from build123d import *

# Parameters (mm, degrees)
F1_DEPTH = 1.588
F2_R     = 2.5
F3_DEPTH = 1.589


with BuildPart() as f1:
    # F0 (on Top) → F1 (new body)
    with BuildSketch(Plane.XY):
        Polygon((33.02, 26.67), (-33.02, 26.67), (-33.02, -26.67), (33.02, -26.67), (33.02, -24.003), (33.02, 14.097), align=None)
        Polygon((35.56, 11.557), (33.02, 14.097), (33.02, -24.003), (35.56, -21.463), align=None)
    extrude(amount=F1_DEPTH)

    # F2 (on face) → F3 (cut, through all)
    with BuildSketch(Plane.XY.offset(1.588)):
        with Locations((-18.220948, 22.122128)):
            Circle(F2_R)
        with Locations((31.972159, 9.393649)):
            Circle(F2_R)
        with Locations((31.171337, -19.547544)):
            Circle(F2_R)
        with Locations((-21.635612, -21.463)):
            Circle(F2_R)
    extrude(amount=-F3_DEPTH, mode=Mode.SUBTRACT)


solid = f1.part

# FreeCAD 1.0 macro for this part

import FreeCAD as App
import Part
import Sketcher
from FreeCAD import Vector
Q = App.Units.Quantity


def add_polygon(sketch, points):
    """Adds a closed chain of lines whose ends are joined by coincident constraints."""
    first, n = sketch.GeometryCount, len(points)
    for a, b in zip(points, points[1:] + points[:1]):
        sketch.addGeometry(Part.LineSegment(App.Vector(*a, 0), App.Vector(*b, 0)), False)
    for i in range(n):
        sketch.addConstraint(Sketcher.Constraint("Coincident", first + i, 2, first + (i + 1) % n, 1))

doc = App.newDocument("Part")
body = doc.addObject("PartDesign::Body", "Body")

# Sketch on XY plane
sketch1 = doc.addObject("Sketcher::SketchObject", "Sketch")
body.addObject(sketch1)
sketch1.AttachmentSupport = (doc.XY_Plane, [""])
sketch1.MapMode = "FlatFace"
add_polygon(sketch1, [(33, 26.7), (-33, 26.7), (-33, -26.7), (33, -26.7), (33, -24), (35.6, -21.5), (35.6, 11.6), (33, 14.1)])  # lines 0-7
sketch1.addConstraint(Sketcher.Constraint("Horizontal", 0))
sketch1.addConstraint(Sketcher.Constraint("Vertical", 1))
sketch1.addConstraint(Sketcher.Constraint("Horizontal", 2))
sketch1.addConstraint(Sketcher.Constraint("Vertical", 3))
sketch1.addConstraint(Sketcher.Constraint("Vertical", 5))
sketch1.addConstraint(Sketcher.Constraint("Vertical", 7))
sketch1.addConstraint(Sketcher.Constraint("Symmetric", 0, 2, 2, 2, -1, 1))
sketch1.addConstraint(Sketcher.Constraint("Perpendicular", 4, 6))
sketch1.addConstraint(Sketcher.Constraint("Vertical", 3, 2, 6, 2))
sketch1.addConstraint(Sketcher.Constraint("Equal", 4, 6))
sketch1.addConstraint(Sketcher.Constraint("DistanceX", 0, 2, 0, 1, Q("2.6 in")))
sketch1.addConstraint(Sketcher.Constraint("DistanceY", 1, 2, 1, 1, Q("2.1 in")))
sketch1.addConstraint(Sketcher.Constraint("DistanceY", 5, 1, 5, 2, Q("1.3 in")))
sketch1.addConstraint(Sketcher.Constraint("DistanceX", -1, 1, 4, 2, Q("1.4 in")))
sketch1.addConstraint(Sketcher.Constraint("DistanceY", 3, 1, 3, 2, Q("0.105 in")))
pad1 = doc.addObject("PartDesign::Pad", "Pad")
body.addObject(pad1)
pad1.Profile = sketch1
pad1.Length = 1.588

# Sketch on XY plane
sketch2 = doc.addObject("Sketcher::SketchObject", "Sketch001")
body.addObject(sketch2)
sketch2.AttachmentSupport = (doc.XY_Plane, [""])
sketch2.MapMode = "FlatFace"
sketch2.AttachmentOffset = App.Placement(Vector(0, 0, 1.588), App.Rotation())
sketch2.addGeometry(Part.Circle(Vector(-18.2, 22.1, 0), Vector(0, 0, 1), 2.5), False)
sketch2.addGeometry(Part.Circle(Vector(32, 9.4, 0), Vector(0, 0, 1), 2.5), False)
sketch2.addGeometry(Part.Circle(Vector(31.2, -19.5, 0), Vector(0, 0, 1), 2.5), False)
sketch2.addGeometry(Part.Circle(Vector(-21.6, -21.5, 0), Vector(0, 0, 1), 2.5), False)
sketch2.addConstraint(Sketcher.Constraint("Equal", 0, 1))
sketch2.addConstraint(Sketcher.Constraint("Equal", 1, 2))
sketch2.addConstraint(Sketcher.Constraint("Equal", 2, 3))
sketch2.addConstraint(Sketcher.Constraint("Diameter", 0, 5.0))
sketch2.addConstraint(Sketcher.Constraint("DistanceY", 3, 3, -1, 1, Q("0.845 in")))
sketch2.addConstraint(Sketcher.Constraint("DistanceX", 0, 3, -1, 1, 18.220948))
sketch2.addConstraint(Sketcher.Constraint("DistanceY", -1, 1, 0, 3, 22.122128))
sketch2.addConstraint(Sketcher.Constraint("DistanceX", -1, 1, 1, 3, 31.972159))
sketch2.addConstraint(Sketcher.Constraint("DistanceY", -1, 1, 1, 3, 9.393649))
sketch2.addConstraint(Sketcher.Constraint("DistanceX", 3, 3, -1, 1, 21.635612))
sketch2.addConstraint(Sketcher.Constraint("DistanceY", 2, 3, 0, 3, 41.669672))
sketch2.addConstraint(Sketcher.Constraint("DistanceX", 3, 3, 2, 3, 52.806949))
pocket1 = doc.addObject("PartDesign::Pocket", "Pocket")
body.addObject(pocket1)
pocket1.Profile = sketch2
pocket1.Type = "ThroughAll"

doc.recompute()
